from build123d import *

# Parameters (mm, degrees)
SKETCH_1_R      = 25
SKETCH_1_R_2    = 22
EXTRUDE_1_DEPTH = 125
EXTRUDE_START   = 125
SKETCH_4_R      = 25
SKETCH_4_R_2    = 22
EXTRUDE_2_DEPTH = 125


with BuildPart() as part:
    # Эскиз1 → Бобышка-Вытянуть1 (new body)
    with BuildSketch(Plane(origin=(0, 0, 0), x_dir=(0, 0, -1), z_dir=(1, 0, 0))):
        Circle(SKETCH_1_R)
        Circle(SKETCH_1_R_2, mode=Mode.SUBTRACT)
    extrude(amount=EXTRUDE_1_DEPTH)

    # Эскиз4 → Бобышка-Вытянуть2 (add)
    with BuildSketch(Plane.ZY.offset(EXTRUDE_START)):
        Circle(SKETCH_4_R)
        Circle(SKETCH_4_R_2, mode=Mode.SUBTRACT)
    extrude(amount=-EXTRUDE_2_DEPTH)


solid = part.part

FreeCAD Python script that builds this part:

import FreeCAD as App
import Part
import Sketcher
from FreeCAD import Vector

doc = App.newDocument("Part")
body = doc.addObject("PartDesign::Body", "Body")

# Sketch on YZ plane
sketch1 = body.newObject("Sketcher::SketchObject", "Sketch")
sketch1.AttachmentSupport = (doc.getObject("YZ_Plane"), [""])
sketch1.MapMode = "FlatFace"
sketch1.addGeometry([
    Part.Circle(Vector(0, 0, 0), Vector(0, 0, 1), 25),
    Part.Circle(Vector(0, 0, 0), Vector(0, 0, 1), 22),
], False)
sketch1.addConstraint([
    Sketcher.Constraint("Coincident", 0, 3, -1, 1),
    Sketcher.Constraint("Coincident", 1, 3, -1, 1),
    Sketcher.Constraint("Diameter", 0, 50.0),
    Sketcher.Constraint("Diameter", 1, 44.0),
])
pad1 = body.newObject("PartDesign::Pad", "Pad")
pad1.Profile = sketch1
pad1.Length = 125

# Sketch on YZ plane
sketch2 = body.newObject("Sketcher::SketchObject", "Sketch001")
sketch2.AttachmentSupport = (doc.getObject("YZ_Plane"), [""])
sketch2.MapMode = "FlatFace"
sketch2.AttachmentOffset = App.Placement(Vector(0, 0, -125), App.Rotation())
sketch2.addGeometry([
    Part.Circle(Vector(0, 0, 0), Vector(0, 0, 1), 25),
    Part.Circle(Vector(0, 0, 0), Vector(0, 0, 1), 22),
], False)
sketch2.addConstraint([
    Sketcher.Constraint("Coincident", 0, 3, -1, 1),
    Sketcher.Constraint("Coincident", 1, 3, -1, 1),
    Sketcher.Constraint("Diameter", 0, 50.0),
    Sketcher.Constraint("Diameter", 1, 44.0),
])
pad2 = body.newObject("PartDesign::Pad", "Pad001")
pad2.Profile = sketch2
pad2.Length = 125

doc.recompute()
